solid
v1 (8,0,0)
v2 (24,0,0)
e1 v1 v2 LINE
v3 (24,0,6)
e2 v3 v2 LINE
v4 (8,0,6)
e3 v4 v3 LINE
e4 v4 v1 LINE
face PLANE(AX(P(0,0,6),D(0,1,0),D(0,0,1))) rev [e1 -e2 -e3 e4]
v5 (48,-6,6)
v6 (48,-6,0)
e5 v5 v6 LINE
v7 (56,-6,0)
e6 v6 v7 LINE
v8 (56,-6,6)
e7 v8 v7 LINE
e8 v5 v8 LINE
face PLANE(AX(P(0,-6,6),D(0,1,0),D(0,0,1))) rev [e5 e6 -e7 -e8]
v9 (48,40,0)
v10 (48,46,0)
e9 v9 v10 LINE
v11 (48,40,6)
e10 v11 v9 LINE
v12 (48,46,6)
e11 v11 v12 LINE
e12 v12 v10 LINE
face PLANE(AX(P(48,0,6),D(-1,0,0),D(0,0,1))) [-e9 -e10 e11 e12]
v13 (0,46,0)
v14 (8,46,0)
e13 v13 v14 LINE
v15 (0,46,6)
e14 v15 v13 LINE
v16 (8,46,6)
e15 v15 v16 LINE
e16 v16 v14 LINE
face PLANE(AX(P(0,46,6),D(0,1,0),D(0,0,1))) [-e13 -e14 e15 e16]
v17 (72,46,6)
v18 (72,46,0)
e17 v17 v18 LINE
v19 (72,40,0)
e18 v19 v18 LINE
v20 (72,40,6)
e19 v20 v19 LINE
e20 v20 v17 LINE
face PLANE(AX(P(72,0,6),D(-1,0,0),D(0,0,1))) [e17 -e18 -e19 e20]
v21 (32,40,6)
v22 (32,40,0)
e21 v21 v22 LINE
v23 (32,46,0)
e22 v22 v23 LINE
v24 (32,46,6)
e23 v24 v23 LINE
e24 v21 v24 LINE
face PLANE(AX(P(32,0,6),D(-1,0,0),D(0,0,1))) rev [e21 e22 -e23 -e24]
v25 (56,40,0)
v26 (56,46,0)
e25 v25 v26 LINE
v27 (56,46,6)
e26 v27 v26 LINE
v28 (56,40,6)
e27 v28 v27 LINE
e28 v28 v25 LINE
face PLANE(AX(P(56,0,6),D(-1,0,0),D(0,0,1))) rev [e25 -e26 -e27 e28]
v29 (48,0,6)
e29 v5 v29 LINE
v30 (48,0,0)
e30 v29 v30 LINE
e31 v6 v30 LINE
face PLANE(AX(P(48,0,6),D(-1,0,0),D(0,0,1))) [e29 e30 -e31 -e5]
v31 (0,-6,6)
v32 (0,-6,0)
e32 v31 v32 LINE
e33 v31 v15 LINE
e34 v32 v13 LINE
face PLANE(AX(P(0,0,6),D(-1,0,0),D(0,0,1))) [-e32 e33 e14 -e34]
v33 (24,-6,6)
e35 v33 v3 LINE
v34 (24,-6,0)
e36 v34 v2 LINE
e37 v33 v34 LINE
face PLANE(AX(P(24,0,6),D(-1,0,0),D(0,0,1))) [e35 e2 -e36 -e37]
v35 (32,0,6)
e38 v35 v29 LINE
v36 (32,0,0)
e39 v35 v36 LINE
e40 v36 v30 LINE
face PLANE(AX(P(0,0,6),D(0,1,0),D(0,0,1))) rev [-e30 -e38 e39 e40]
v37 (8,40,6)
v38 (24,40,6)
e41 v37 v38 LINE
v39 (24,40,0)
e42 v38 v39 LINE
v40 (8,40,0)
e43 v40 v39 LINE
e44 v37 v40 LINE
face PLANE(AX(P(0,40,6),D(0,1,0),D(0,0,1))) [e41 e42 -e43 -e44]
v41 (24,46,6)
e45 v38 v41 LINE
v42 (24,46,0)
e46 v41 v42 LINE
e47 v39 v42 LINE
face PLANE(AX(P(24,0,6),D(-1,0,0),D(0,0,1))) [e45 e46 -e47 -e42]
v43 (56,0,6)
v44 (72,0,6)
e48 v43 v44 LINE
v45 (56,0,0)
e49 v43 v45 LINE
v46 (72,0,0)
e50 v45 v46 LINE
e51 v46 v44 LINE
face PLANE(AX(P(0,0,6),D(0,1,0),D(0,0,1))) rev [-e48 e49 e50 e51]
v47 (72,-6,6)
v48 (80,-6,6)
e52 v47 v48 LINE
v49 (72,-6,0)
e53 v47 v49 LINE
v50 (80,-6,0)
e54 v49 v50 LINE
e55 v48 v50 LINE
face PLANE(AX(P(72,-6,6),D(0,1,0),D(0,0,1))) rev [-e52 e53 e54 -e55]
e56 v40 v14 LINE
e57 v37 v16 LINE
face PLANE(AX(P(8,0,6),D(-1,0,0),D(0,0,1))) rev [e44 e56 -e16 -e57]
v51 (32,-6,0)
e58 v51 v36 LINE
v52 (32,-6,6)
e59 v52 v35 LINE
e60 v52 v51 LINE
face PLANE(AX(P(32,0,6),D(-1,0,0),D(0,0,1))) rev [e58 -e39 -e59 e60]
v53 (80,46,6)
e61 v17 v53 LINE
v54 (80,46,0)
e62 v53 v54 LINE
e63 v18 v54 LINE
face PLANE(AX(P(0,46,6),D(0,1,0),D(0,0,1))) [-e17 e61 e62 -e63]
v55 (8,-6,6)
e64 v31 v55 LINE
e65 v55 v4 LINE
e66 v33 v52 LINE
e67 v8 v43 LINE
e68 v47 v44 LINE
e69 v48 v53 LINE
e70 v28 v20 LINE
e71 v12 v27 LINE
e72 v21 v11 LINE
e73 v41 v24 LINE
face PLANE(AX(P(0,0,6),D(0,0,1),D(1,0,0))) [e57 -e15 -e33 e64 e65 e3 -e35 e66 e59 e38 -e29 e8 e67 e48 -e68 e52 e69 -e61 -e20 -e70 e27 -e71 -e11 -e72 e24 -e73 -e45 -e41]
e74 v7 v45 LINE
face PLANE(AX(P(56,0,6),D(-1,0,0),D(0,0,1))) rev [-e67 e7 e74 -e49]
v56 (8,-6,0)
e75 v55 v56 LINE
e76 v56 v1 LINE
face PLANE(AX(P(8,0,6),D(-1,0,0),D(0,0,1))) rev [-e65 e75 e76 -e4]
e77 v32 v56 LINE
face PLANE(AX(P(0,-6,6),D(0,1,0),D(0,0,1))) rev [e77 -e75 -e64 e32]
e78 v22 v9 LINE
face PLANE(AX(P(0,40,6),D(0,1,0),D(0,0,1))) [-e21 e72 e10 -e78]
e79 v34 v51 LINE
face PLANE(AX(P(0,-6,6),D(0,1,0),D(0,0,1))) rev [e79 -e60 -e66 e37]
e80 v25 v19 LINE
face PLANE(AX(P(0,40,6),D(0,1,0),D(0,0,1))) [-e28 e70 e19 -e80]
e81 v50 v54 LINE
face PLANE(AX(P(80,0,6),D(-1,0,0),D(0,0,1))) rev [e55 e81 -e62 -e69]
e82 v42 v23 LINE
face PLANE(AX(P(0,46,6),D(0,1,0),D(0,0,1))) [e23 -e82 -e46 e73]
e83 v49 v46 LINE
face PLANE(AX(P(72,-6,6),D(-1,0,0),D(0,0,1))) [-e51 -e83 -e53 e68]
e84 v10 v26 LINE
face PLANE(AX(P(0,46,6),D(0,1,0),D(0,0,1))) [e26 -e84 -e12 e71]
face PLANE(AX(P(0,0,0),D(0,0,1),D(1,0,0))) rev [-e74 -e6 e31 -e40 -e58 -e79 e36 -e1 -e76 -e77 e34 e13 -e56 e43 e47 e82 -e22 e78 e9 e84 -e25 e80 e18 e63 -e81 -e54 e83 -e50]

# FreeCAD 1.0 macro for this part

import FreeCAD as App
import Part
import Sketcher
from FreeCAD import Vector


def add_polygon(sketch, points):
    """Adds a closed chain of lines whose ends are joined by coincident constraints."""
    first, n = sketch.GeometryCount, len(points)
    for a, b in zip(points, points[1:] + points[:1]):
        sketch.addGeometry(Part.LineSegment(App.Vector(*a, 0), App.Vector(*b, 0)), False)
    for i in range(n):
        sketch.addConstraint(Sketcher.Constraint("Coincident", first + i, 2, first + (i + 1) % n, 1))

doc = App.newDocument("Part")
params = doc.addObject("Spreadsheet::Sheet", "Params")
for row, (alias, value) in enumerate([
    ("sketch1_width", "8 mm"),
    ("sketch1_width2", "16 mm"),
    ("sketch1_height", "6 mm"),
    ("sketch1_height2", "52 mm"),
    ("pad1_length", "6 mm"),
], start=1):
    params.set(f"A{row}", alias)
    params.set(f"B{row}", "=" + value)
    params.setAlias(f"B{row}", alias)

body = doc.addObject("PartDesign::Body", "Body")

sketch1 = body.newObject("Sketcher::SketchObject", "Sketch")
sketch1.AttachmentSupport = (doc.getObject("XY_Plane"), [""])
sketch1.MapMode = "FlatFace"
add_polygon(sketch1, [(0, -6), (8, -6), (8, 0), (24, 0), (24, -6), (32, -6), (32, 0), (48, 0), (48, -6), (56, -6), (56, 0), (72, 0), (72, -6), (80, -6), (80, 46), (72, 46), (72, 40), (56, 40), (56, 46), (48, 46), (48, 40), (32, 40), (32, 46), (24, 46), (24, 40), (8, 40), (8, 46), (0, 46)])
sketch1.addConstraint([
    Sketcher.Constraint("Horizontal", 0),
    Sketcher.Constraint("Vertical", 1),
    Sketcher.Constraint("Horizontal", 2),
    Sketcher.Constraint("Vertical", 3),
    Sketcher.Constraint("Horizontal", 4),
    Sketcher.Constraint("Vertical", 5),
    Sketcher.Constraint("Horizontal", 6),
    Sketcher.Constraint("Vertical", 7),
    Sketcher.Constraint("Horizontal", 8),
    Sketcher.Constraint("Vertical", 9),
    Sketcher.Constraint("Horizontal", 10),
    Sketcher.Constraint("Vertical", 11),
    Sketcher.Constraint("Horizontal", 12),
    Sketcher.Constraint("Vertical", 13),
    Sketcher.Constraint("Horizontal", 14),
    Sketcher.Constraint("Vertical", 15),
    Sketcher.Constraint("Horizontal", 16),
    Sketcher.Constraint("Vertical", 17),
    Sketcher.Constraint("Horizontal", 18),
    Sketcher.Constraint("Vertical", 19),
    Sketcher.Constraint("Horizontal", 20),
    Sketcher.Constraint("Vertical", 21),
    Sketcher.Constraint("Horizontal", 22),
    Sketcher.Constraint("Vertical", 23),
    Sketcher.Constraint("Horizontal", 24),
    Sketcher.Constraint("Vertical", 25),
    Sketcher.Constraint("Horizontal", 26),
    Sketcher.Constraint("Vertical", 27),
    Sketcher.Constraint("PointOnObject", 1, 2, -1),
    Sketcher.Constraint("PointOnObject", 5, 2, -1),
    Sketcher.Constraint("PointOnObject", 9, 2, -1),
    Sketcher.Constraint("PointOnObject", 26, 2, -2),
    Sketcher.Constraint("Horizontal", 0, 2, 3, 2),
    Sketcher.Constraint("Horizontal", 4, 2, 7, 2),
    Sketcher.Constraint("Horizontal", 8, 2, 11, 2),
    Sketcher.Constraint("Horizontal", 14, 2, 17, 2),
    Sketcher.Constraint("Horizontal", 16, 2, 19, 2),
    Sketcher.Constraint("Horizontal", 18, 2, 21, 2),
    Sketcher.Constraint("Horizontal", 20, 2, 23, 2),
    Sketcher.Constraint("Horizontal", 22, 2, 25, 2),
    Sketcher.Constraint("Vertical", 11, 2, 14, 2),
    Sketcher.Constraint("Vertical", 9, 2, 16, 2),
    Sketcher.Constraint("Vertical", 7, 2, 18, 2),
    Sketcher.Constraint("Vertical", 5, 2, 20, 2),
    Sketcher.Constraint("Vertical", 3, 2, 22, 2),
    Sketcher.Constraint("Vertical", 1, 2, 24, 2),
    Sketcher.Constraint("Equal", 0, 4),
    Sketcher.Constraint("Equal", 2, 6),
    Sketcher.Constraint("Equal", 4, 8),
    Sketcher.Constraint("Equal", 6, 10),
    Sketcher.Constraint("Equal", 8, 12),
    Sketcher.Constraint("Equal", 11, 15),
    Sketcher.Constraint("DistanceX", 0, 1, 0, 2, 8.0),
    Sketcher.Constraint("DistanceX", 2, 1, 2, 2, 16.0),
    Sketcher.Constraint("DistanceY", 1, 1, 1, 2, 6.0),
    Sketcher.Constraint("DistanceY", 13, 1, 13, 2, 52.0),
])
sketch1.setExpression("Constraints[80]", "Params.sketch1_width")
sketch1.setExpression("Constraints[81]", "Params.sketch1_width2")
sketch1.setExpression("Constraints[82]", "Params.sketch1_height")
sketch1.setExpression("Constraints[83]", "Params.sketch1_height2")
pad1 = body.newObject("PartDesign::Pad", "Pad")
pad1.Profile = sketch1
pad1.setExpression("Length", "Params.pad1_length")

doc.recompute()
